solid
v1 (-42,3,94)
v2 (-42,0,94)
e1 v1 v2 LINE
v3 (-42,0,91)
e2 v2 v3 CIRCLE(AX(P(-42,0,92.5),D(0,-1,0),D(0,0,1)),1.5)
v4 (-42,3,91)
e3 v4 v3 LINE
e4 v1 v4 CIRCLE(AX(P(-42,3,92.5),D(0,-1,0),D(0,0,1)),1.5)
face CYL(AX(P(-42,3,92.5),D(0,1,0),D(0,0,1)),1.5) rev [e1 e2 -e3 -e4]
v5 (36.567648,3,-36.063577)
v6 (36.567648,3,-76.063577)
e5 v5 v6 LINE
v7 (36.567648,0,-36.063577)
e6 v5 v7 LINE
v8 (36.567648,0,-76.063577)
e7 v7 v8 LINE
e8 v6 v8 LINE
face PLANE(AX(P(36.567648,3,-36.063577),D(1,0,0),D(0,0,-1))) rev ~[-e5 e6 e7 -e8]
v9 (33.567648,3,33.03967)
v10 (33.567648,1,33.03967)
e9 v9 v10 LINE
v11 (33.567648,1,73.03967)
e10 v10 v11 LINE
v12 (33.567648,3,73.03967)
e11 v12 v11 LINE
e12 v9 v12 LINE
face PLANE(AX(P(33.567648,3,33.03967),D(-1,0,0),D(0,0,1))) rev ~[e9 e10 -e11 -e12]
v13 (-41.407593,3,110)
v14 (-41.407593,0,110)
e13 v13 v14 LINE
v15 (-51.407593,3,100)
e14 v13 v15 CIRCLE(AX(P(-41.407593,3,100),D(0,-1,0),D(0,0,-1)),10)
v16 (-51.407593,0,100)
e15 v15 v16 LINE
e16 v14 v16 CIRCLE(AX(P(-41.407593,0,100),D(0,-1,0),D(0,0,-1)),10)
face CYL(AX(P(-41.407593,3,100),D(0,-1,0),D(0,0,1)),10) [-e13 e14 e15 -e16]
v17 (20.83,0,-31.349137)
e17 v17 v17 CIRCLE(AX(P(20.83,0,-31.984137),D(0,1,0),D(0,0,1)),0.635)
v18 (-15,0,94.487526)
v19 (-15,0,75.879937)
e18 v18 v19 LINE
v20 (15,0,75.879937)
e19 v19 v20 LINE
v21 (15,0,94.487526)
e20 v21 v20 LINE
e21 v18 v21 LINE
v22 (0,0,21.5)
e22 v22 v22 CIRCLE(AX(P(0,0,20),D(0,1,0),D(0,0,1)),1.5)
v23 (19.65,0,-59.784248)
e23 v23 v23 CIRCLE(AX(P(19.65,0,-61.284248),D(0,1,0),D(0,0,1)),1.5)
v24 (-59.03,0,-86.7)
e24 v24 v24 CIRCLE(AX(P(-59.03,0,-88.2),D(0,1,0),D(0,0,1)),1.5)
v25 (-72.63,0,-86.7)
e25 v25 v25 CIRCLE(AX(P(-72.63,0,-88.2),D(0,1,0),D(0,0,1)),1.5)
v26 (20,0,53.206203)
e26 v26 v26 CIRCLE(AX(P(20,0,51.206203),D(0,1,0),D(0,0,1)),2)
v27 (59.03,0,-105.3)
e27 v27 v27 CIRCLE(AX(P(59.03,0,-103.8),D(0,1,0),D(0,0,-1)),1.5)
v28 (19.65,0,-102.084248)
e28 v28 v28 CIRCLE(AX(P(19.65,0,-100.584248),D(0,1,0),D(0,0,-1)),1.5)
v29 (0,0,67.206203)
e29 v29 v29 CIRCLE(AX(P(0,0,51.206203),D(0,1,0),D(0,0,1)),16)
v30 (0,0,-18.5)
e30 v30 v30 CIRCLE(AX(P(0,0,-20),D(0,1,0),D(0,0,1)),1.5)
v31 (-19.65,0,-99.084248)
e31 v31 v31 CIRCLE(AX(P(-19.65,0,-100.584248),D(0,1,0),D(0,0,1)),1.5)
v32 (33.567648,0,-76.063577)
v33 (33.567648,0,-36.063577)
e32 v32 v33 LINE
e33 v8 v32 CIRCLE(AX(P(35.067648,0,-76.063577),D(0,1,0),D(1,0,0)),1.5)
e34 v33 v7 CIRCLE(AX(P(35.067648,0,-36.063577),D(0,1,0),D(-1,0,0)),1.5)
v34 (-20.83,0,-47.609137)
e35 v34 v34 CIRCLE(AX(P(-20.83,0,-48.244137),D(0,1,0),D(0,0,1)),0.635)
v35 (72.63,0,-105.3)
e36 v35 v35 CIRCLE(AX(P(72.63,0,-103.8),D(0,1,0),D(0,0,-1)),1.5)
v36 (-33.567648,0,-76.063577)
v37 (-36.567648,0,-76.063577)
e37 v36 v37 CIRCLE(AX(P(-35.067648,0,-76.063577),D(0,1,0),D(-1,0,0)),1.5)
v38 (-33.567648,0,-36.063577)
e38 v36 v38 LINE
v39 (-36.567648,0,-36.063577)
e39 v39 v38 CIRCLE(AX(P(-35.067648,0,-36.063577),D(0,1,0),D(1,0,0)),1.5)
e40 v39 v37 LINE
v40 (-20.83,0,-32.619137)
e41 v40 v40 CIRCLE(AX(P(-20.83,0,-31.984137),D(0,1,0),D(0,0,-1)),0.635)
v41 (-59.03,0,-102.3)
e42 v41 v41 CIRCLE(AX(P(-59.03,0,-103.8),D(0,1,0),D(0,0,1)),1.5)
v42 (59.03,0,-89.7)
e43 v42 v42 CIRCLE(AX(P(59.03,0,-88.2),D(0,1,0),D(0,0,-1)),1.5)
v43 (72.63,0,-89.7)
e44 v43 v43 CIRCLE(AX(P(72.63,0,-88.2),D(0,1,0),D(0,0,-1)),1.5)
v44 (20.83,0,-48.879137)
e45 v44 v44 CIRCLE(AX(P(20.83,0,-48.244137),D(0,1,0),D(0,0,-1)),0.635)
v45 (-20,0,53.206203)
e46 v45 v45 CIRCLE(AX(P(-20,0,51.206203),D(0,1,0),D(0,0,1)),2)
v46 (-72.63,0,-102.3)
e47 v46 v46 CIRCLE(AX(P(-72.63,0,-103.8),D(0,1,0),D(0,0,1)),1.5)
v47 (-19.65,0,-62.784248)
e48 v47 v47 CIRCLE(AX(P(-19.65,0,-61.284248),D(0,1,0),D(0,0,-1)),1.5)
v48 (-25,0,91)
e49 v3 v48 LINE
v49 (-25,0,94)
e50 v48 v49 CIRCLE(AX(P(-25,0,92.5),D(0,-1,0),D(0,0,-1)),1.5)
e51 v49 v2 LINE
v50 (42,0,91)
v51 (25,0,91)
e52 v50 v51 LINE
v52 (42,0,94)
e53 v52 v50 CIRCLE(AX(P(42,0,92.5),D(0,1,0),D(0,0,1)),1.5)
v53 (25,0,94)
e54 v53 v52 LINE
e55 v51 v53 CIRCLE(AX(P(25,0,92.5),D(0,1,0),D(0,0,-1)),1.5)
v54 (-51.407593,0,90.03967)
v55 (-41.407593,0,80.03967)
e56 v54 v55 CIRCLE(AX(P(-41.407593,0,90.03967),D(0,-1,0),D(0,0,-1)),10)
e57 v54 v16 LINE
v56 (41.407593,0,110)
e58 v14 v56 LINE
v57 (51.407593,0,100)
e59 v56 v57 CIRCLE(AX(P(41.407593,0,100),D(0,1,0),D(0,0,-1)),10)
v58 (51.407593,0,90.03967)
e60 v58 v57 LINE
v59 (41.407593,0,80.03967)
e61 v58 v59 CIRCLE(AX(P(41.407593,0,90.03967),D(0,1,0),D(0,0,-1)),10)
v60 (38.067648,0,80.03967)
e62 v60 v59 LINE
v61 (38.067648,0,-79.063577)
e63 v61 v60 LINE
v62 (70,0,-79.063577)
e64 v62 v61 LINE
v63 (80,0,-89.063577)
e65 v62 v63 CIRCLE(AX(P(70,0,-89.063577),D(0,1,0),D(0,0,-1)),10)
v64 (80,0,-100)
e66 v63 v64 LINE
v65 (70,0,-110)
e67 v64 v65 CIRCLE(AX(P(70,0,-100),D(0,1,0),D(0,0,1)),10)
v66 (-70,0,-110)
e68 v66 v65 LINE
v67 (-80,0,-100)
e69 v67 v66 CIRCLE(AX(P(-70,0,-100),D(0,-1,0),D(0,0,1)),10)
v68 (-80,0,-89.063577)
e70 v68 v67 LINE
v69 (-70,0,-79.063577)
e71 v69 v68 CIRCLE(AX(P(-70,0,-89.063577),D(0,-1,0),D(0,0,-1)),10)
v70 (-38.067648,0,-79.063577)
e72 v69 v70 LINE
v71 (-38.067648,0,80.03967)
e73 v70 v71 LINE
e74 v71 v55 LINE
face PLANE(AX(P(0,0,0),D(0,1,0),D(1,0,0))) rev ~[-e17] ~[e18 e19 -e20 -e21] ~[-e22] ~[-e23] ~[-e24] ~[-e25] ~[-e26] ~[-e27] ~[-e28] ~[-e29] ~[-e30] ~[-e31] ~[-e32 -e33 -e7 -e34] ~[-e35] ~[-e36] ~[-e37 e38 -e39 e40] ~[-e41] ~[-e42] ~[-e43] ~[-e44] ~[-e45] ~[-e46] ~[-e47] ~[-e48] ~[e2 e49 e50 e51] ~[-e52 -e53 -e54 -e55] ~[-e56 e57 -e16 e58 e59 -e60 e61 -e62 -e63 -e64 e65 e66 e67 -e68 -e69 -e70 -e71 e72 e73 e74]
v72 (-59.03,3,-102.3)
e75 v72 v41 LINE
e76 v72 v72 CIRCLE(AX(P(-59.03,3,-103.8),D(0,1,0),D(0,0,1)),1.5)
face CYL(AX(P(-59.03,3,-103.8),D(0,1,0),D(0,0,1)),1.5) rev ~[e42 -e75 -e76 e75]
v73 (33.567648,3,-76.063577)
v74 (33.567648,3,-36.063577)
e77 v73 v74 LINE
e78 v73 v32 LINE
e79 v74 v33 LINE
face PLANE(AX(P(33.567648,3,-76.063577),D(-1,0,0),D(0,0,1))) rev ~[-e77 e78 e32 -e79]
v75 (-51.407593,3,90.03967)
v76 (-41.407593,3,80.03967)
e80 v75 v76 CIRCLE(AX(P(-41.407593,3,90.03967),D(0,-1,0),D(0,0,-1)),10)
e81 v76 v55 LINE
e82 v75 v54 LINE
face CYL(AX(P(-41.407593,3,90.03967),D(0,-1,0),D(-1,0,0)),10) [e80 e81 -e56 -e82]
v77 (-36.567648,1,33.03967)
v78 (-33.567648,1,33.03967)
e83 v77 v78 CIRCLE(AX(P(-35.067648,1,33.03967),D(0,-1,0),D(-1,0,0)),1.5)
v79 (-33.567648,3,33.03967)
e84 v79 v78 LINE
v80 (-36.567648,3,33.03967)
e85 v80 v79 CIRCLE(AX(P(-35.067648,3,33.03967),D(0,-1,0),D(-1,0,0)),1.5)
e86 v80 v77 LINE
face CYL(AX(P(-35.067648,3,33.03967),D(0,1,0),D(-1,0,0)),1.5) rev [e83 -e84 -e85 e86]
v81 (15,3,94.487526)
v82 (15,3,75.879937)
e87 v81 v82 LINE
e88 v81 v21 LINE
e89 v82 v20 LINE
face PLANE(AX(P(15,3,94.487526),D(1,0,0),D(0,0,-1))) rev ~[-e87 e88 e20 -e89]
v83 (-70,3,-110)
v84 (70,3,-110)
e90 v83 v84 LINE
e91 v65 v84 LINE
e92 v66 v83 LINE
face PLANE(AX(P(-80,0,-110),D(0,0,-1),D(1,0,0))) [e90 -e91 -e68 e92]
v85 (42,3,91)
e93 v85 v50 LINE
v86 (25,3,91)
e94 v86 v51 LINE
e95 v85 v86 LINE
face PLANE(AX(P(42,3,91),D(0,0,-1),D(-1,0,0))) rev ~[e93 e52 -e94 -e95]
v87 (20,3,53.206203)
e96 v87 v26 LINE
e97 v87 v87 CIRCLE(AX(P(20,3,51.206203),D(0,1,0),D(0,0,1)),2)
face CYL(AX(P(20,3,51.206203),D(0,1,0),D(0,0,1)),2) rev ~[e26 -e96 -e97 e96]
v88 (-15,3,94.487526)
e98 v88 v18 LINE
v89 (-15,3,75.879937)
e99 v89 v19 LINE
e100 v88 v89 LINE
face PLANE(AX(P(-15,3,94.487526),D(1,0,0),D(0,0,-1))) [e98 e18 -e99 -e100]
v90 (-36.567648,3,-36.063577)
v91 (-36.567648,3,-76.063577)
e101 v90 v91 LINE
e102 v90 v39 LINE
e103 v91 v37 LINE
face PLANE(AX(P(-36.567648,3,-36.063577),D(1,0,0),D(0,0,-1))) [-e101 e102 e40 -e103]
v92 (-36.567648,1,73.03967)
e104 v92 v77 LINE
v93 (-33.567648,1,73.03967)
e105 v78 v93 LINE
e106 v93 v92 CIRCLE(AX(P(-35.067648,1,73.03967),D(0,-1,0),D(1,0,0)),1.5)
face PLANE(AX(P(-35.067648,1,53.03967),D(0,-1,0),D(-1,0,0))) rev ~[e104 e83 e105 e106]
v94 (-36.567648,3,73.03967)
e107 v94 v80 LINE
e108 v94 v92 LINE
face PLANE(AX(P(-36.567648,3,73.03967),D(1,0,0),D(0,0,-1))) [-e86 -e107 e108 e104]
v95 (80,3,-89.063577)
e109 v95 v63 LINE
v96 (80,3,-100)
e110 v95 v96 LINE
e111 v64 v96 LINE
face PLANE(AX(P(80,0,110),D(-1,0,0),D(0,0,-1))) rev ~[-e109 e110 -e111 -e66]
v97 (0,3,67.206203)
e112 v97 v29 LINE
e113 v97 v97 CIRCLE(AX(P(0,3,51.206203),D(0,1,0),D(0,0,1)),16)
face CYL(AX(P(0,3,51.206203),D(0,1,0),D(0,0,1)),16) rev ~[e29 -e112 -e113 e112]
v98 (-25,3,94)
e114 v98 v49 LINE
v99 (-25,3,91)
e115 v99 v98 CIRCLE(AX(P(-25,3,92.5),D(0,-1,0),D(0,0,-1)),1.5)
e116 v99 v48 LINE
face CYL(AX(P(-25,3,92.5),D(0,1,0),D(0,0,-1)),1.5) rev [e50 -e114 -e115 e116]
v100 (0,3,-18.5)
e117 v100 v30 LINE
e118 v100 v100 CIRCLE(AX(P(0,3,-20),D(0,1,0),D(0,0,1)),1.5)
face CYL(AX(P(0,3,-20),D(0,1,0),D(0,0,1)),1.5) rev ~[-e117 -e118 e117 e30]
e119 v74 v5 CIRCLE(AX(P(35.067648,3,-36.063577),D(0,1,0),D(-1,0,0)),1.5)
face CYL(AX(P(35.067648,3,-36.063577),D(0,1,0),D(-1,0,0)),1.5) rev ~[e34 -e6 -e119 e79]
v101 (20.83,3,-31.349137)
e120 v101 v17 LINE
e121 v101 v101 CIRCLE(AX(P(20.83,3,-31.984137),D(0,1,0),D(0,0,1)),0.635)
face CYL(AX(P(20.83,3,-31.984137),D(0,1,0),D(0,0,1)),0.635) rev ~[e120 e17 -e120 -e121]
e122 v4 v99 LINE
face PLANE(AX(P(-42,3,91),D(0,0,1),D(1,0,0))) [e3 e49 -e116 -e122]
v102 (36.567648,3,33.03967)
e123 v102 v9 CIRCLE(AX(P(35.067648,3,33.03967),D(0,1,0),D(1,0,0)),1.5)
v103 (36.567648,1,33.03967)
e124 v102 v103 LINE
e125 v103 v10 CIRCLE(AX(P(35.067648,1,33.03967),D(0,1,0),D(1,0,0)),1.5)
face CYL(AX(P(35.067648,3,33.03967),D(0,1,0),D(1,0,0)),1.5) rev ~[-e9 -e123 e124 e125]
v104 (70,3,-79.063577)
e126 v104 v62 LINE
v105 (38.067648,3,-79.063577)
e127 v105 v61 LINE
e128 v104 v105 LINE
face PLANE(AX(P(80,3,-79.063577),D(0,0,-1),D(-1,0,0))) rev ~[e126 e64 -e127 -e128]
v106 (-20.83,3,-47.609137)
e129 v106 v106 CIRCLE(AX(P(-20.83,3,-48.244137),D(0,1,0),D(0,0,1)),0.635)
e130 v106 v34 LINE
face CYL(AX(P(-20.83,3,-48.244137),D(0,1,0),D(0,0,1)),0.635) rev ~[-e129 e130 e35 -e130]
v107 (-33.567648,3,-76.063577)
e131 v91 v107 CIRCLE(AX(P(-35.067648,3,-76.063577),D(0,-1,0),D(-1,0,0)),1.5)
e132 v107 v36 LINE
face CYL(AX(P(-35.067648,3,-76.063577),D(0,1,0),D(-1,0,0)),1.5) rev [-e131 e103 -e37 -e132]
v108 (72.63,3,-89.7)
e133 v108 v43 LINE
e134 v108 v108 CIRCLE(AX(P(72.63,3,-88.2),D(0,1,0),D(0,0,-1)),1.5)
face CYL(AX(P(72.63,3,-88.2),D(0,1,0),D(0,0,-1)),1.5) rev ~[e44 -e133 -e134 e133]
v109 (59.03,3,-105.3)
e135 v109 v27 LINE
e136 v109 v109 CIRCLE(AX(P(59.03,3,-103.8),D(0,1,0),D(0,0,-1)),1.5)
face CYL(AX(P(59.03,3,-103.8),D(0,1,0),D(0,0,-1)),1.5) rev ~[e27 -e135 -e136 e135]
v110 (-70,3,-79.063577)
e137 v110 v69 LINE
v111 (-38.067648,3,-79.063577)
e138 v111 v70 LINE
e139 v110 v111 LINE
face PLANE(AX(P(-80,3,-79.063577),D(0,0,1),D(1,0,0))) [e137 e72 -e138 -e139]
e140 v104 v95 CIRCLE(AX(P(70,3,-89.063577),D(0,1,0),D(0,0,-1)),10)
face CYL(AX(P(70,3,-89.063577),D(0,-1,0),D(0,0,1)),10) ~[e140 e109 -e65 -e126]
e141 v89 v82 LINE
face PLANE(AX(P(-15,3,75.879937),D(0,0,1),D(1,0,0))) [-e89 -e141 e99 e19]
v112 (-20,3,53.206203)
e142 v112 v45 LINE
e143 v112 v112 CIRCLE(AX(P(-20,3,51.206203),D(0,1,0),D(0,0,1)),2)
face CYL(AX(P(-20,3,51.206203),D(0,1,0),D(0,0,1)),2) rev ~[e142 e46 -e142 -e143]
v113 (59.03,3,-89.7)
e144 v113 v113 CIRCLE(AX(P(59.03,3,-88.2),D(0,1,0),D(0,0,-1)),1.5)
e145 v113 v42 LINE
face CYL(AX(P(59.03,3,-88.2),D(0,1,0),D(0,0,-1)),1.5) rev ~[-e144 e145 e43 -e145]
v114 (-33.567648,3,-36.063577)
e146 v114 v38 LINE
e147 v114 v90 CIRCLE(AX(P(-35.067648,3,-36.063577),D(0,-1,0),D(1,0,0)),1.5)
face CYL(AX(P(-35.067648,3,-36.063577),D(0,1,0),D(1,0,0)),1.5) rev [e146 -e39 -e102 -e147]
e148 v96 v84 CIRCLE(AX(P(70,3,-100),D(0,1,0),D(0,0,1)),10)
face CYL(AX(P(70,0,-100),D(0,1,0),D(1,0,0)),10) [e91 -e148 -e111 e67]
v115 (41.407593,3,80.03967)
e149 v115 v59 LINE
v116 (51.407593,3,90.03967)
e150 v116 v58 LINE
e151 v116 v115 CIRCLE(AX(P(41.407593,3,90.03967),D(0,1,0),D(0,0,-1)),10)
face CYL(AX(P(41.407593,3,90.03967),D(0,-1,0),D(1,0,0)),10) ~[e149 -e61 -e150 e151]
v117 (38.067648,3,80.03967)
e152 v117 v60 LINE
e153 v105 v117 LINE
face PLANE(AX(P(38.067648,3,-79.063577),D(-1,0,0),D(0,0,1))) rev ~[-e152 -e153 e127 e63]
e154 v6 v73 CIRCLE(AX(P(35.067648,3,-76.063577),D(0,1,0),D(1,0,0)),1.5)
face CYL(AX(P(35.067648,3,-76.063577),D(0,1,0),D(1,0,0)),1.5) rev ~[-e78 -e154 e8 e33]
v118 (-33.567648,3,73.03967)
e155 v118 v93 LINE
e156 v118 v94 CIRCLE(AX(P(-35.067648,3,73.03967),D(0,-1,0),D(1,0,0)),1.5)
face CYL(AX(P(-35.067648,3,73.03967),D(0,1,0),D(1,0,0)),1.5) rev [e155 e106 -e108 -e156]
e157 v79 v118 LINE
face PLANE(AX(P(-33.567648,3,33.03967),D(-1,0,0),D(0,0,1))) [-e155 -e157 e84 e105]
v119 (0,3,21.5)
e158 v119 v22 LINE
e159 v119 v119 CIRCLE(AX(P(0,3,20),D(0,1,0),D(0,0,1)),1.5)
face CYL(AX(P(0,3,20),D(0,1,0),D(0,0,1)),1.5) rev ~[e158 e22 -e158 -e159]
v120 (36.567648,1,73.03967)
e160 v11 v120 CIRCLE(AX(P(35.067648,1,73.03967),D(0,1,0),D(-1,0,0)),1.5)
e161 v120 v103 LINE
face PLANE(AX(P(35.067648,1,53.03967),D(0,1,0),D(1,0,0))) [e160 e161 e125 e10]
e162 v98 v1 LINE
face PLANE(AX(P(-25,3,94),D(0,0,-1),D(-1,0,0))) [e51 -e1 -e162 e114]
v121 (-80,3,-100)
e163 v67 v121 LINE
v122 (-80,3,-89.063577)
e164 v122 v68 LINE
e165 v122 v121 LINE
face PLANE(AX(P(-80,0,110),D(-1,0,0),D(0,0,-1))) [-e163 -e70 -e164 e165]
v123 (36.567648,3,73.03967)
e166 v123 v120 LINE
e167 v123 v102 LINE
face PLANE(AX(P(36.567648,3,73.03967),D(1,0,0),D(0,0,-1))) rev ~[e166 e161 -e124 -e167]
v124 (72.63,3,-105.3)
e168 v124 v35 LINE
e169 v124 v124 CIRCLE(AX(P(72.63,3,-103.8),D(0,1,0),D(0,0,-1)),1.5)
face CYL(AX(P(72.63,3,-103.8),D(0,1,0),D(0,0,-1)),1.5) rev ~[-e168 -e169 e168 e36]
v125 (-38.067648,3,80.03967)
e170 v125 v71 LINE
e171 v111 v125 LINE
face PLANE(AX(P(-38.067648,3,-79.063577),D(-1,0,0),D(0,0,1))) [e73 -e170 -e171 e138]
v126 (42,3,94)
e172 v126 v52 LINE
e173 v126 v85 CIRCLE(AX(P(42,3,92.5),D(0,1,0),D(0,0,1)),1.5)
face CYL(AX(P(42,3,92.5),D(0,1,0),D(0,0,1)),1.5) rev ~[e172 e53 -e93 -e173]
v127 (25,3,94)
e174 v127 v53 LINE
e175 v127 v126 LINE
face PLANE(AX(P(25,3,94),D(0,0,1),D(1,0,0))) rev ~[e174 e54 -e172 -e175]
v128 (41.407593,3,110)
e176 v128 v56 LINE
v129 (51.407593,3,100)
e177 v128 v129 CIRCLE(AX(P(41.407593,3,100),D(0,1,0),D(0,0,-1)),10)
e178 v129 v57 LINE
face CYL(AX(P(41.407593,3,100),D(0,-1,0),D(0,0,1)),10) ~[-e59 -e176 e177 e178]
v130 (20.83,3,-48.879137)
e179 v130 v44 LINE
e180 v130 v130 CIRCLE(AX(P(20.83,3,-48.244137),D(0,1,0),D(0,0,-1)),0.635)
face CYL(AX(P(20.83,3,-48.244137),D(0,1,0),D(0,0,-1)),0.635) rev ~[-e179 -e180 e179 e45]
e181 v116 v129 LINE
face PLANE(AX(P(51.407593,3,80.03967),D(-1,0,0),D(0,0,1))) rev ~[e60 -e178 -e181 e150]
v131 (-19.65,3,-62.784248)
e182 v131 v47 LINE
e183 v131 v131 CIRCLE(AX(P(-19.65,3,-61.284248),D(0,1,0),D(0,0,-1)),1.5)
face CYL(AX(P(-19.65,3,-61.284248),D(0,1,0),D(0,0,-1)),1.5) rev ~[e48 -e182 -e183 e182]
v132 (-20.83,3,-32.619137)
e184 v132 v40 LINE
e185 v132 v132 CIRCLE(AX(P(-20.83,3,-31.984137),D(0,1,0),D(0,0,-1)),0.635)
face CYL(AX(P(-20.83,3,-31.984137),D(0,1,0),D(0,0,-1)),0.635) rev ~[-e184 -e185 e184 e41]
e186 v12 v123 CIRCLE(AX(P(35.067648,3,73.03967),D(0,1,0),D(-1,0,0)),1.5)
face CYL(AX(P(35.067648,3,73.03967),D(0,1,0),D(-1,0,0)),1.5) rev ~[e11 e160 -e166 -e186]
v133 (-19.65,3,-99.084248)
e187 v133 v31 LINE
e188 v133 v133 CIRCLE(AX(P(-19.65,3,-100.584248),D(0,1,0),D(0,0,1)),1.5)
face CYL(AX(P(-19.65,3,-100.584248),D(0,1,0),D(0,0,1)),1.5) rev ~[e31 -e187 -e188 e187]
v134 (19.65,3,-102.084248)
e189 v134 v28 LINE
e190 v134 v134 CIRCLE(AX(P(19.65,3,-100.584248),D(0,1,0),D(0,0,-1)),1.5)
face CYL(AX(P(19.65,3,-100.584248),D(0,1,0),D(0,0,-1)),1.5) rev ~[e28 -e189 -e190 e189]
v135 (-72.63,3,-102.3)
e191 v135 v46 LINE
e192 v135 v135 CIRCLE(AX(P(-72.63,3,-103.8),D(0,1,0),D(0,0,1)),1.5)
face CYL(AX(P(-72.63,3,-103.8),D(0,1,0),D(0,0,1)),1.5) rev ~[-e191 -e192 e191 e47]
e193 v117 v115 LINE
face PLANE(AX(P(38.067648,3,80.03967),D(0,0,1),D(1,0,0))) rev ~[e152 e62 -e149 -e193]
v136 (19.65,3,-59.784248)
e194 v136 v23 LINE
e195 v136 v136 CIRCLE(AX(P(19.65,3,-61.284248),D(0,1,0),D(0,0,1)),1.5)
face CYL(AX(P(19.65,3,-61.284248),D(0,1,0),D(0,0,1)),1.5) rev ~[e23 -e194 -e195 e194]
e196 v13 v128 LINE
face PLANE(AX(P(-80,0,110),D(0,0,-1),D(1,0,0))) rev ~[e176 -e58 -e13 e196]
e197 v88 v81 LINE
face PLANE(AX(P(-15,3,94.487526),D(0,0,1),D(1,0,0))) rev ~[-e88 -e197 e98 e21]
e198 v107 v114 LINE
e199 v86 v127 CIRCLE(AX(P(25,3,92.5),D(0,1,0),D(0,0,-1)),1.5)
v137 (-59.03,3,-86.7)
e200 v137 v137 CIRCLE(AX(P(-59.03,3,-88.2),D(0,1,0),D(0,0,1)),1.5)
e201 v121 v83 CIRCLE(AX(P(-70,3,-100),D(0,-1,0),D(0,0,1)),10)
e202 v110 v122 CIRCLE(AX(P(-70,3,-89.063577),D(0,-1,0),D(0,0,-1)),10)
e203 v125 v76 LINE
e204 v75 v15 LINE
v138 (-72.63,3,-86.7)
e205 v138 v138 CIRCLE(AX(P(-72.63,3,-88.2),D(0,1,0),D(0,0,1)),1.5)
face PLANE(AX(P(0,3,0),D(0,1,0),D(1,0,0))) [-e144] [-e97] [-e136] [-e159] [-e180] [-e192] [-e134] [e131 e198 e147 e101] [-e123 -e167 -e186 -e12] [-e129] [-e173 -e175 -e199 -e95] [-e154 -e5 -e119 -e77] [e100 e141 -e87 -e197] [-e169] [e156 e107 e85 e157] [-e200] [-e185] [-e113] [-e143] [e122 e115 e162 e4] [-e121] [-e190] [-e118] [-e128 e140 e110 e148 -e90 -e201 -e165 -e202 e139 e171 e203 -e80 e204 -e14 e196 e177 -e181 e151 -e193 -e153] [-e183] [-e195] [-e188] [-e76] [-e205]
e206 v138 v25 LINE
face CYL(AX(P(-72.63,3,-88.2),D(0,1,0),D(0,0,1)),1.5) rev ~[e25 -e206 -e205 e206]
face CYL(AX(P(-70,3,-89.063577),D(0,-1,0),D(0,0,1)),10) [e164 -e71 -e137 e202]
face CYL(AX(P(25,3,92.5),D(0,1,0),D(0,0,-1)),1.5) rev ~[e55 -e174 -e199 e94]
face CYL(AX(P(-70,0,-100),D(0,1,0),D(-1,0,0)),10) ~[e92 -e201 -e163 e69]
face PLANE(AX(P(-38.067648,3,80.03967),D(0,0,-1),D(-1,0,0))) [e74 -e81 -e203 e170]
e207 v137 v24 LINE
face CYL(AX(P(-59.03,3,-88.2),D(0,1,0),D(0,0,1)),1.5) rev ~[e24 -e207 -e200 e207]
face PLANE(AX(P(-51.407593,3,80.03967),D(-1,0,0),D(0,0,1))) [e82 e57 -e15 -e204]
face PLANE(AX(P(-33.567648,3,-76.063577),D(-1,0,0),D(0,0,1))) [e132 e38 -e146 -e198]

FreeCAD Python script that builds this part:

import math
import FreeCAD as App
import Part
import Sketcher
from FreeCAD import Vector
Q = App.Units.Quantity


def edges_at(feature, points):
    """Names of the edges that pass closest to the given points."""
    edges = feature.Shape.Edges
    near = lambda p: min(range(len(edges)), key=lambda i: edges[i].distToShape(Part.Vertex(*p))[0])
    return sorted({f"Edge{near(p) + 1}" for p in points})


def add_polygon(sketch, points):
    """Adds a closed chain of lines whose ends are joined by coincident constraints."""
    first, n = sketch.GeometryCount, len(points)
    for a, b in zip(points, points[1:] + points[:1]):
        sketch.addGeometry(Part.LineSegment(App.Vector(*a, 0), App.Vector(*b, 0)), False)
    for i in range(n):
        sketch.addConstraint(Sketcher.Constraint("Coincident", first + i, 2, first + (i + 1) % n, 1))

doc = App.newDocument("Part")
body = doc.addObject("PartDesign::Body", "Body")

# Sketch on XZ plane
sketch1 = body.newObject("Sketcher::SketchObject", "Sketch")
sketch1.AttachmentSupport = (doc.getObject("XZ_Plane"), [""])
sketch1.MapMode = "FlatFace"
add_polygon(sketch1, [(-80, -110), (-80, 110), (80, 110), (80, -110)])  # lines 0-3
sketch1.addConstraint(Sketcher.Constraint("Vertical", 0))
sketch1.addConstraint(Sketcher.Constraint("Horizontal", 1))
sketch1.addConstraint(Sketcher.Constraint("Vertical", 2))
sketch1.addConstraint(Sketcher.Constraint("Horizontal", 3))
sketch1.addConstraint(Sketcher.Constraint("Symmetric", 0, 2, 2, 2, -1, 1))
sketch1.addConstraint(Sketcher.Constraint("DistanceX", 1, 1, 1, 2, Q("160 mm")))
sketch1.addConstraint(Sketcher.Constraint("DistanceY", 0, 1, 0, 2, Q("220 mm")))
pad1 = body.newObject("PartDesign::Pad", "Pad")
pad1.Profile = sketch1
pad1.Length = 3
pad1.Reversed = True

# Sketch on XZ plane
sketch2 = body.newObject("Sketcher::SketchObject", "Sketch001")
sketch2.AttachmentSupport = (doc.getObject("XZ_Plane"), [""])
sketch2.MapMode = "FlatFace"
sketch2.AttachmentOffset = App.Placement(Vector(0, 0, -3), App.Rotation())
sketch2.addGeometry(Part.Circle(Vector(-59, -88.2, 0), Vector(0, 0, 1), 1.5), False)
sketch2.addGeometry(Part.Circle(Vector(-72.6, -88.2, 0), Vector(0, 0, 1), 1.5), False)
sketch2.addGeometry(Part.Circle(Vector(-59, -103.8, 0), Vector(0, 0, 1), 1.5), False)
sketch2.addGeometry(Part.Circle(Vector(-72.6, -103.8, 0), Vector(0, 0, 1), 1.5), False)
sketch2.addGeometry(Part.Circle(Vector(72.6, -103.8, 0), Vector(0, 0, 1), 1.5), False)
sketch2.addGeometry(Part.Circle(Vector(59, -103.8, 0), Vector(0, 0, 1), 1.5), False)
sketch2.addGeometry(Part.Circle(Vector(72.6, -88.2, 0), Vector(0, 0, 1), 1.5), False)
sketch2.addGeometry(Part.Circle(Vector(59, -88.2, 0), Vector(0, 0, 1), 1.5), False)
sketch2.addConstraint(Sketcher.Constraint("Equal", 0, 1))
sketch2.addConstraint(Sketcher.Constraint("Equal", 1, 2))
sketch2.addConstraint(Sketcher.Constraint("Equal", 2, 3))
sketch2.addConstraint(Sketcher.Constraint("Equal", 3, 4))
sketch2.addConstraint(Sketcher.Constraint("Equal", 4, 5))
sketch2.addConstraint(Sketcher.Constraint("Equal", 5, 6))
sketch2.addConstraint(Sketcher.Constraint("Equal", 6, 7))
sketch2.addConstraint(Sketcher.Constraint("Symmetric", 3, 3, 4, 3, -2))
sketch2.addConstraint(Sketcher.Constraint("Symmetric", 2, 3, 5, 3, -2))
sketch2.addConstraint(Sketcher.Constraint("Symmetric", 1, 3, 6, 3, -2))
sketch2.addConstraint(Sketcher.Constraint("Symmetric", 0, 3, 7, 3, -2))
sketch2.addConstraint(Sketcher.Constraint("Horizontal", 0, 3, 1, 3))
sketch2.addConstraint(Sketcher.Constraint("Horizontal", 2, 3, 3, 3))
sketch2.addConstraint(Sketcher.Constraint("Vertical", 0, 3, 2, 3))
sketch2.addConstraint(Sketcher.Constraint("Vertical", 1, 3, 3, 3))
sketch2.addConstraint(Sketcher.Constraint("Diameter", 0, Q("3 mm")))
sketch2.addConstraint(Sketcher.Constraint("DistanceY", 0, 3, -1, 1, Q("88.2 mm")))
sketch2.addConstraint(Sketcher.Constraint("DistanceY", 2, 3, -1, 1, Q("103.8 mm")))
sketch2.addConstraint(Sketcher.Constraint("DistanceX", 1, 3, 0, 3, Q("13.6 mm")))
sketch2.addConstraint(Sketcher.Constraint("DistanceX", 0, 3, -1, 1, Q("59.03 mm")))
pocket1 = body.newObject("PartDesign::Pocket", "Pocket")
pocket1.Profile = sketch2
pocket1.Length = 3
pocket1.Reversed = True

# Sketch on XZ plane
sketch3 = body.newObject("Sketcher::SketchObject", "Sketch002")
sketch3.AttachmentSupport = (doc.getObject("XZ_Plane"), [""])
sketch3.MapMode = "FlatFace"
sketch3.AttachmentOffset = App.Placement(Vector(0, 0, -3), App.Rotation())
sketch3.addGeometry(Part.Circle(Vector(-19.6, -100.6, 0), Vector(0, 0, 1), 1.5), False)
sketch3.addGeometry(Part.Circle(Vector(19.6, -100.6, 0), Vector(0, 0, 1), 1.5), False)
sketch3.addGeometry(Part.Circle(Vector(19.6, -61.3, 0), Vector(0, 0, 1), 1.5), False)
sketch3.addGeometry(Part.Circle(Vector(-19.6, -61.3, 0), Vector(0, 0, 1), 1.5), False)
sketch3.addConstraint(Sketcher.Constraint("Equal", 0, 1))
sketch3.addConstraint(Sketcher.Constraint("Equal", 1, 2))
sketch3.addConstraint(Sketcher.Constraint("Equal", 2, 3))
sketch3.addConstraint(Sketcher.Constraint("Symmetric", 0, 3, 1, 3, -2))
sketch3.addConstraint(Sketcher.Constraint("Symmetric", 2, 3, 3, 3, -2))
sketch3.addConstraint(Sketcher.Constraint("Vertical", 1, 3, 2, 3))
sketch3.addConstraint(Sketcher.Constraint("Diameter", 0, Q("3 mm")))
sketch3.addConstraint(Sketcher.Constraint("DistanceX", 0, 3, 1, 3, Q("39.3 mm")))
sketch3.addConstraint(Sketcher.Constraint("DistanceY", 1, 3, 2, 3, Q("39.3 mm")))
sketch3.addConstraint(Sketcher.Constraint("DistanceY", 0, 3, -1, 1, Q("100.584248 mm")))
pocket2 = body.newObject("PartDesign::Pocket", "Pocket001")
pocket2.Profile = sketch3
pocket2.Length = 3
pocket2.Reversed = True

# Sketch on XZ plane
sketch4 = body.newObject("Sketcher::SketchObject", "Sketch003")
sketch4.AttachmentSupport = (doc.getObject("XZ_Plane"), [""])
sketch4.MapMode = "FlatFace"
sketch4.AttachmentOffset = App.Placement(Vector(0, 0, -3), App.Rotation())
sketch4.addGeometry(Part.Circle(Vector(0, -20, 0), Vector(0, 0, 1), 1.5), False)
sketch4.addGeometry(Part.Circle(Vector(0, 20, 0), Vector(0, 0, 1), 1.5), False)
sketch4.addConstraint(Sketcher.Constraint("Equal", 0, 1))
sketch4.addConstraint(Sketcher.Constraint("Symmetric", 0, 3, 1, 3, -1, 1))
sketch4.addConstraint(Sketcher.Constraint("PointOnObject", 0, 3, -2))
sketch4.addConstraint(Sketcher.Constraint("Diameter", 0, Q("3 mm")))
sketch4.addConstraint(Sketcher.Constraint("DistanceY", 0, 3, -1, 1, Q("20 mm")))
pocket3 = body.newObject("PartDesign::Pocket", "Pocket002")
pocket3.Profile = sketch4
pocket3.Length = 3
pocket3.Reversed = True

# Sketch on XZ plane
sketch5 = body.newObject("Sketcher::SketchObject", "Sketch004")
sketch5.AttachmentSupport = (doc.getObject("XZ_Plane"), [""])
sketch5.MapMode = "FlatFace"
sketch5.AttachmentOffset = App.Placement(Vector(0, 0, -3), App.Rotation())
sketch5.addGeometry(Part.Circle(Vector(-20.8, -48.2, 0), Vector(0, 0, 1), 0.6), False)
sketch5.addGeometry(Part.Circle(Vector(20.8, -48.2, 0), Vector(0, 0, 1), 0.6), False)
sketch5.addGeometry(Part.Circle(Vector(20.8, -32, 0), Vector(0, 0, 1), 0.6), False)
sketch5.addGeometry(Part.Circle(Vector(-20.8, -32, 0), Vector(0, 0, 1), 0.6), False)
sketch5.addConstraint(Sketcher.Constraint("Equal", 0, 1))
sketch5.addConstraint(Sketcher.Constraint("Equal", 1, 2))
sketch5.addConstraint(Sketcher.Constraint("Equal", 2, 3))
sketch5.addConstraint(Sketcher.Constraint("Symmetric", 0, 3, 1, 3, -2))
sketch5.addConstraint(Sketcher.Constraint("Symmetric", 2, 3, 3, 3, -2))
sketch5.addConstraint(Sketcher.Constraint("Vertical", 1, 3, 2, 3))
sketch5.addConstraint(Sketcher.Constraint("Diameter", 0, Q("1.27 mm")))
sketch5.addConstraint(Sketcher.Constraint("DistanceX", 0, 3, -1, 1, Q("20.83 mm")))
sketch5.addConstraint(Sketcher.Constraint("DistanceY", 1, 3, 2, 3, Q("16.26 mm")))
sketch5.addConstraint(Sketcher.Constraint("DistanceY", 0, 3, -1, 1, Q("48.244137 mm")))
pocket4 = body.newObject("PartDesign::Pocket", "Pocket003")
pocket4.Profile = sketch5
pocket4.Length = 3
pocket4.Reversed = True

# Sketch on XZ plane
sketch6 = body.newObject("Sketcher::SketchObject", "Sketch005")
sketch6.AttachmentSupport = (doc.getObject("XZ_Plane"), [""])
sketch6.MapMode = "FlatFace"
sketch6.AttachmentOffset = App.Placement(Vector(0, 0, -3), App.Rotation())
sketch6.addGeometry(Part.LineSegment(Vector(-25, 91, 0), Vector(-42, 91, 0)), False)  # 0
sketch6.addGeometry(Part.ArcOfCircle(Part.Circle(Vector(-42, 92.5, 0), Vector(0, 0, 1), 1.5), math.radians(90), math.radians(270)), False)  # 1
sketch6.addGeometry(Part.LineSegment(Vector(-42, 94, 0), Vector(-25, 94, 0)), False)  # 2
sketch6.addGeometry(Part.ArcOfCircle(Part.Circle(Vector(-25, 92.5, 0), Vector(0, 0, 1), 1.5), math.radians(-90), math.radians(90)), False)  # 3
add_polygon(sketch6, [(-15, 75.9), (-15, 94.5), (15, 94.5), (15, 75.9)])  # lines 4-7
sketch6.addGeometry(Part.LineSegment(Vector(42, 91, 0), Vector(25, 91, 0)), False)  # 8
sketch6.addGeometry(Part.ArcOfCircle(Part.Circle(Vector(25, 92.5, 0), Vector(0, 0, 1), 1.5), math.radians(90), math.radians(270)), False)  # 9
sketch6.addGeometry(Part.LineSegment(Vector(25, 94, 0), Vector(42, 94, 0)), False)  # 10
sketch6.addGeometry(Part.ArcOfCircle(Part.Circle(Vector(42, 92.5, 0), Vector(0, 0, 1), 1.5), math.radians(-90), math.radians(90)), False)  # 11
sketch6.addConstraint(Sketcher.Constraint("Tangent", 0, 2, 1, 2))
sketch6.addConstraint(Sketcher.Constraint("Tangent", 1, 1, 2, 1))
sketch6.addConstraint(Sketcher.Constraint("Tangent", 2, 2, 3, 2))
sketch6.addConstraint(Sketcher.Constraint("Tangent", 3, 1, 0, 1))
sketch6.addConstraint(Sketcher.Constraint("Tangent", 8, 2, 9, 2))
sketch6.addConstraint(Sketcher.Constraint("Tangent", 9, 1, 10, 1))
sketch6.addConstraint(Sketcher.Constraint("Tangent", 10, 2, 11, 2))
sketch6.addConstraint(Sketcher.Constraint("Tangent", 11, 1, 8, 1))
sketch6.addConstraint(Sketcher.Constraint("Horizontal", 0))
sketch6.addConstraint(Sketcher.Constraint("Horizontal", 2))
sketch6.addConstraint(Sketcher.Constraint("Vertical", 4))
sketch6.addConstraint(Sketcher.Constraint("Horizontal", 5))
sketch6.addConstraint(Sketcher.Constraint("Vertical", 6))
sketch6.addConstraint(Sketcher.Constraint("Horizontal", 7))
sketch6.addConstraint(Sketcher.Constraint("Horizontal", 8))
sketch6.addConstraint(Sketcher.Constraint("Horizontal", 10))
sketch6.addConstraint(Sketcher.Constraint("Equal", 3, 9))
sketch6.addConstraint(Sketcher.Constraint("Symmetric", 3, 3, 9, 3, -2))
sketch6.addConstraint(Sketcher.Constraint("Equal", 2, 8))
sketch6.addConstraint(Sketcher.Constraint("Radius", 1, Q("1.5 mm")))
sketch6.addConstraint(Sketcher.Constraint("DistanceX", 0, 2, 0, 1, Q("17 mm")))
sketch6.addConstraint(Sketcher.Constraint("DistanceX", 5, 1, 5, 2, Q("30 mm")))
sketch6.addConstraint(Sketcher.Constraint("DistanceX", 1, 3, -1, 1, Q("42 mm")))
sketch6.addConstraint(Sketcher.Constraint("DistanceY", -1, 1, 0, 2, Q("91 mm")))
sketch6.addConstraint(Sketcher.Constraint("DistanceX", 4, 2, -1, 1, Q("15 mm")))
sketch6.addConstraint(Sketcher.Constraint("DistanceY", 4, 1, 4, 2, Q("18.607589 mm")))
sketch6.addConstraint(Sketcher.Constraint("DistanceY", -1, 1, 4, 2, Q("94.487526 mm")))
pocket5 = body.newObject("PartDesign::Pocket", "Pocket004")
pocket5.Profile = sketch6
pocket5.Length = 3
pocket5.Reversed = True

# Sketch on XZ plane
sketch7 = body.newObject("Sketcher::SketchObject", "Sketch006")
sketch7.AttachmentSupport = (doc.getObject("XZ_Plane"), [""])
sketch7.MapMode = "FlatFace"
sketch7.AttachmentOffset = App.Placement(Vector(0, 0, -3), App.Rotation())
add_polygon(sketch7, [(58, -70), (58, 110), (80, 110), (80, -70)])  # lines 0-3
add_polygon(sketch7, [(-80, -70), (-80, 110), (-58, 110), (-58, -70)])  # lines 4-7
sketch7.addConstraint(Sketcher.Constraint("Vertical", 0))
sketch7.addConstraint(Sketcher.Constraint("Horizontal", 1))
sketch7.addConstraint(Sketcher.Constraint("Vertical", 2))
sketch7.addConstraint(Sketcher.Constraint("Horizontal", 3))
sketch7.addConstraint(Sketcher.Constraint("Vertical", 4))
sketch7.addConstraint(Sketcher.Constraint("Horizontal", 5))
sketch7.addConstraint(Sketcher.Constraint("Vertical", 6))
sketch7.addConstraint(Sketcher.Constraint("Horizontal", 7))
sketch7.addConstraint(Sketcher.Constraint("Symmetric", 1, 2, 4, 2, -2))
sketch7.addConstraint(Sketcher.Constraint("Symmetric", 3, 2, 6, 2, -2))
sketch7.addConstraint(Sketcher.Constraint("DistanceX", 1, 1, 1, 2, Q("22 mm")))
sketch7.addConstraint(Sketcher.Constraint("DistanceX", -1, 1, 0, 2, Q("58 mm")))
sketch7.addConstraint(Sketcher.Constraint("DistanceY", -1, 1, 0, 2, Q("110 mm")))
sketch7.addConstraint(Sketcher.Constraint("DistanceY", 0, 1, 0, 2, Q("179.95337 mm")))
pocket6 = body.newObject("PartDesign::Pocket", "Pocket005")
pocket6.Profile = sketch7
pocket6.Length = 3
pocket6.Reversed = True

# Sketch on XZ plane
sketch8 = body.newObject("Sketcher::SketchObject", "Sketch007")
sketch8.AttachmentSupport = (doc.getObject("XZ_Plane"), [""])
sketch8.MapMode = "FlatFace"
sketch8.AttachmentOffset = App.Placement(Vector(0, 0, -3), App.Rotation())
sketch8.addGeometry(Part.Circle(Vector(-20, 51.2, 0), Vector(0, 0, 1), 2), False)
sketch8.addGeometry(Part.Circle(Vector(20, 51.2, 0), Vector(0, 0, 1), 2), False)
sketch8.addConstraint(Sketcher.Constraint("Equal", 0, 1))
sketch8.addConstraint(Sketcher.Constraint("Symmetric", 0, 3, 1, 3, -2))
sketch8.addConstraint(Sketcher.Constraint("Diameter", 0, Q("4 mm")))
sketch8.addConstraint(Sketcher.Constraint("DistanceX", 0, 3, -1, 1, Q("20 mm")))
sketch8.addConstraint(Sketcher.Constraint("DistanceY", -1, 1, 0, 3, Q("51.206203 mm")))
pocket7 = body.newObject("PartDesign::Pocket", "Pocket006")
pocket7.Profile = sketch8
pocket7.Length = 3
pocket7.Reversed = True

# Sketch on XZ plane
sketch9 = body.newObject("Sketcher::SketchObject", "Sketch008")
sketch9.AttachmentSupport = (doc.getObject("XZ_Plane"), [""])
sketch9.MapMode = "FlatFace"
sketch9.AttachmentOffset = App.Placement(Vector(0, 0, -3), App.Rotation())
add_polygon(sketch9, [(-38, -79), (-80, -79), (-80, -70), (-58, -70), (-58, 110), (-51, 110), (-51, 80), (-38, 80)])  # lines 0-7
add_polygon(sketch9, [(80, -70), (80, -79), (38, -79), (38, 80), (51, 80), (51, 110), (58, 110), (58, -70)])  # lines 8-15
sketch9.addConstraint(Sketcher.Constraint("Horizontal", 0))
sketch9.addConstraint(Sketcher.Constraint("Vertical", 1))
sketch9.addConstraint(Sketcher.Constraint("Horizontal", 2))
sketch9.addConstraint(Sketcher.Constraint("Vertical", 3))
sketch9.addConstraint(Sketcher.Constraint("Horizontal", 4))
sketch9.addConstraint(Sketcher.Constraint("Vertical", 5))
sketch9.addConstraint(Sketcher.Constraint("Horizontal", 6))
sketch9.addConstraint(Sketcher.Constraint("Vertical", 7))
sketch9.addConstraint(Sketcher.Constraint("Vertical", 8))
sketch9.addConstraint(Sketcher.Constraint("Horizontal", 9))
sketch9.addConstraint(Sketcher.Constraint("Vertical", 10))
sketch9.addConstraint(Sketcher.Constraint("Horizontal", 11))
sketch9.addConstraint(Sketcher.Constraint("Vertical", 12))
sketch9.addConstraint(Sketcher.Constraint("Horizontal", 13))
sketch9.addConstraint(Sketcher.Constraint("Vertical", 14))
sketch9.addConstraint(Sketcher.Constraint("Horizontal", 15))
sketch9.addConstraint(Sketcher.Constraint("Symmetric", 0, 2, 8, 2, -2))
sketch9.addConstraint(Sketcher.Constraint("Symmetric", 6, 2, 10, 2, -2))
sketch9.addConstraint(Sketcher.Constraint("Symmetric", 4, 2, 12, 2, -2))
sketch9.addConstraint(Sketcher.Constraint("Symmetric", 2, 2, 14, 2, -2))
sketch9.addConstraint(Sketcher.Constraint("DistanceX", 2, 1, 2, 2, Q("22 mm")))
sketch9.addConstraint(Sketcher.Constraint("DistanceX", 0, 2, -1, 1, Q("80 mm")))
sketch9.addConstraint(Sketcher.Constraint("DistanceY", -1, 1, 3, 2, Q("110 mm")))
sketch9.addConstraint(Sketcher.Constraint("DistanceY", 3, 1, 3, 2, Q("179.95337 mm")))
sketch9.addConstraint(Sketcher.Constraint("DistanceY", 5, 2, 5, 1, Q("29.96033 mm")))
sketch9.addConstraint(Sketcher.Constraint("DistanceX", 0, 2, 0, 1, Q("41.932352 mm")))
sketch9.addConstraint(Sketcher.Constraint("DistanceX", 4, 1, 4, 2, Q("6.592407 mm")))
sketch9.addConstraint(Sketcher.Constraint("DistanceY", 1, 1, 1, 2, Q("9.110206 mm")))
pocket8 = body.newObject("PartDesign::Pocket", "Pocket007")
pocket8.Profile = sketch9
pocket8.Length = 3
pocket8.Reversed = True
doc.recompute()

fillet = body.newObject("PartDesign::Fillet", "Fillet")
fillet.Base = (pocket8, edges_at(pocket8, [(-51.408, 1.5, 110)]))
fillet.Radius = 10
doc.recompute()

fillet2 = body.newObject("PartDesign::Fillet", "Fillet001")
fillet2.Base = (fillet, edges_at(fillet, [
    (-80, 1.5, -79.064),
    (-51.408, 1.5, 80.04),
    (80, 1.5, -79.064),
    (-80, 1.5, -110),
    (80, 1.5, -110),
]))
fillet2.Radius = 10
doc.recompute()

fillet3 = body.newObject("PartDesign::Fillet", "Fillet002")
fillet3.Base = (fillet2, edges_at(fillet2, [(51.408, 1.5, 110), (51.408, 1.5, 80.04)]))
fillet3.Radius = 10

# Sketch on XZ plane
sketch10 = body.newObject("Sketcher::SketchObject", "Sketch009")
sketch10.AttachmentSupport = (doc.getObject("XZ_Plane"), [""])
sketch10.MapMode = "FlatFace"
sketch10.AttachmentOffset = App.Placement(Vector(0, 0, -3), App.Rotation())
sketch10.addGeometry(Part.LineSegment(Vector(-36.6, -76.1, 0), Vector(-36.6, -36.1, 0)), False)
sketch10.addGeometry(Part.ArcOfCircle(Part.Circle(Vector(-35.1, -36.1, 0), Vector(0, 0, 1), 1.5), math.radians(0), math.radians(180)), False)
sketch10.addGeometry(Part.LineSegment(Vector(-33.6, -36.1, 0), Vector(-33.6, -76.1, 0)), False)
sketch10.addGeometry(Part.ArcOfCircle(Part.Circle(Vector(-35.1, -76.1, 0), Vector(0, 0, 1), 1.5), math.radians(180), math.radians(360)), False)
sketch10.addGeometry(Part.LineSegment(Vector(36.6, -36.1, 0), Vector(36.6, -76.1, 0)), False)
sketch10.addGeometry(Part.ArcOfCircle(Part.Circle(Vector(35.1, -76.1, 0), Vector(0, 0, 1), 1.5), math.radians(180), math.radians(360)), False)
sketch10.addGeometry(Part.LineSegment(Vector(33.6, -76.1, 0), Vector(33.6, -36.1, 0)), False)
sketch10.addGeometry(Part.ArcOfCircle(Part.Circle(Vector(35.1, -36.1, 0), Vector(0, 0, 1), 1.5), math.radians(0), math.radians(180)), False)
sketch10.addConstraint(Sketcher.Constraint("Tangent", 0, 2, 1, 2))
sketch10.addConstraint(Sketcher.Constraint("Tangent", 1, 1, 2, 1))
sketch10.addConstraint(Sketcher.Constraint("Tangent", 2, 2, 3, 2))
sketch10.addConstraint(Sketcher.Constraint("Tangent", 3, 1, 0, 1))
sketch10.addConstraint(Sketcher.Constraint("Tangent", 4, 2, 5, 2))
sketch10.addConstraint(Sketcher.Constraint("Tangent", 5, 1, 6, 1))
sketch10.addConstraint(Sketcher.Constraint("Tangent", 6, 2, 7, 2))
sketch10.addConstraint(Sketcher.Constraint("Tangent", 7, 1, 4, 1))
sketch10.addConstraint(Sketcher.Constraint("Vertical", 0))
sketch10.addConstraint(Sketcher.Constraint("Vertical", 2))
sketch10.addConstraint(Sketcher.Constraint("Vertical", 4))
sketch10.addConstraint(Sketcher.Constraint("Vertical", 6))
sketch10.addConstraint(Sketcher.Constraint("Equal", 3, 5))
sketch10.addConstraint(Sketcher.Constraint("Symmetric", 3, 3, 5, 3, -2))
sketch10.addConstraint(Sketcher.Constraint("Horizontal", 1, 3, 7, 3))
sketch10.addConstraint(Sketcher.Constraint("Radius", 1, Q("1.5 mm")))
sketch10.addConstraint(Sketcher.Constraint("DistanceY", 0, 1, 0, 2, Q("40 mm")))
sketch10.addConstraint(Sketcher.Constraint("DistanceX", 1, 3, -1, 1, Q("35.067648 mm")))
sketch10.addConstraint(Sketcher.Constraint("DistanceY", 1, 3, -1, 1, Q("36.063577 mm")))
pocket9 = body.newObject("PartDesign::Pocket", "Pocket008")
pocket9.Profile = sketch10
pocket9.Length = 10
pocket9.Reversed = True

# Sketch on XZ plane
sketch11 = body.newObject("Sketcher::SketchObject", "Sketch010")
sketch11.AttachmentSupport = (doc.getObject("XZ_Plane"), [""])
sketch11.MapMode = "FlatFace"
sketch11.AttachmentOffset = App.Placement(Vector(0, 0, -3), App.Rotation())
sketch11.addGeometry(Part.Circle(Vector(0, 51, 0), Vector(0, 0, 1), 16), False)
sketch11.addConstraint(Sketcher.Constraint("PointOnObject", 0, 3, -2))
sketch11.addConstraint(Sketcher.Constraint("Diameter", 0, Q("32 mm")))
sketch11.addConstraint(Sketcher.Constraint("DistanceY", -1, 1, 0, 3, Q("51.206203 mm")))
pocket10 = body.newObject("PartDesign::Pocket", "Pocket009")
pocket10.Profile = sketch11
pocket10.Length = 10
pocket10.Reversed = True

# Sketch on XZ plane
sketch12 = body.newObject("Sketcher::SketchObject", "Sketch011")
sketch12.AttachmentSupport = (doc.getObject("XZ_Plane"), [""])
sketch12.MapMode = "FlatFace"
sketch12.AttachmentOffset = App.Placement(Vector(0, 0, -3), App.Rotation())
sketch12.addGeometry(Part.LineSegment(Vector(-36.6, 33, 0), Vector(-36.6, 73, 0)), False)
sketch12.addGeometry(Part.ArcOfCircle(Part.Circle(Vector(-35.1, 73, 0), Vector(0, 0, 1), 1.5), math.radians(0), math.radians(180)), False)
sketch12.addGeometry(Part.LineSegment(Vector(-33.6, 73, 0), Vector(-33.6, 33, 0)), False)
sketch12.addGeometry(Part.ArcOfCircle(Part.Circle(Vector(-35.1, 33, 0), Vector(0, 0, 1), 1.5), math.radians(180), math.radians(360)), False)
sketch12.addGeometry(Part.LineSegment(Vector(36.6, 73, 0), Vector(36.6, 33, 0)), False)
sketch12.addGeometry(Part.ArcOfCircle(Part.Circle(Vector(35.1, 33, 0), Vector(0, 0, 1), 1.5), math.radians(180), math.radians(360)), False)
sketch12.addGeometry(Part.LineSegment(Vector(33.6, 33, 0), Vector(33.6, 73, 0)), False)
sketch12.addGeometry(Part.ArcOfCircle(Part.Circle(Vector(35.1, 73, 0), Vector(0, 0, 1), 1.5), math.radians(0), math.radians(180)), False)
sketch12.addConstraint(Sketcher.Constraint("Tangent", 0, 2, 1, 2))
sketch12.addConstraint(Sketcher.Constraint("Tangent", 1, 1, 2, 1))
sketch12.addConstraint(Sketcher.Constraint("Tangent", 2, 2, 3, 2))
sketch12.addConstraint(Sketcher.Constraint("Tangent", 3, 1, 0, 1))
sketch12.addConstraint(Sketcher.Constraint("Tangent", 4, 2, 5, 2))
sketch12.addConstraint(Sketcher.Constraint("Tangent", 5, 1, 6, 1))
sketch12.addConstraint(Sketcher.Constraint("Tangent", 6, 2, 7, 2))
sketch12.addConstraint(Sketcher.Constraint("Tangent", 7, 1, 4, 1))
sketch12.addConstraint(Sketcher.Constraint("Vertical", 0))
sketch12.addConstraint(Sketcher.Constraint("Vertical", 2))
sketch12.addConstraint(Sketcher.Constraint("Vertical", 4))
sketch12.addConstraint(Sketcher.Constraint("Vertical", 6))
sketch12.addConstraint(Sketcher.Constraint("Equal", 3, 5))
sketch12.addConstraint(Sketcher.Constraint("Symmetric", 3, 3, 5, 3, -2))
sketch12.addConstraint(Sketcher.Constraint("Horizontal", 1, 3, 7, 3))
sketch12.addConstraint(Sketcher.Constraint("Radius", 1, Q("1.5 mm")))
sketch12.addConstraint(Sketcher.Constraint("DistanceY", 0, 1, 0, 2, Q("40 mm")))
sketch12.addConstraint(Sketcher.Constraint("DistanceY", -1, 1, 1, 3, Q("73.03967 mm")))
sketch12.addConstraint(Sketcher.Constraint("DistanceX", 1, 3, -1, 1, Q("35.067648 mm")))
pocket11 = body.newObject("PartDesign::Pocket", "Pocket010")
pocket11.Profile = sketch12
pocket11.Length = 2
pocket11.Reversed = True

doc.recompute()
